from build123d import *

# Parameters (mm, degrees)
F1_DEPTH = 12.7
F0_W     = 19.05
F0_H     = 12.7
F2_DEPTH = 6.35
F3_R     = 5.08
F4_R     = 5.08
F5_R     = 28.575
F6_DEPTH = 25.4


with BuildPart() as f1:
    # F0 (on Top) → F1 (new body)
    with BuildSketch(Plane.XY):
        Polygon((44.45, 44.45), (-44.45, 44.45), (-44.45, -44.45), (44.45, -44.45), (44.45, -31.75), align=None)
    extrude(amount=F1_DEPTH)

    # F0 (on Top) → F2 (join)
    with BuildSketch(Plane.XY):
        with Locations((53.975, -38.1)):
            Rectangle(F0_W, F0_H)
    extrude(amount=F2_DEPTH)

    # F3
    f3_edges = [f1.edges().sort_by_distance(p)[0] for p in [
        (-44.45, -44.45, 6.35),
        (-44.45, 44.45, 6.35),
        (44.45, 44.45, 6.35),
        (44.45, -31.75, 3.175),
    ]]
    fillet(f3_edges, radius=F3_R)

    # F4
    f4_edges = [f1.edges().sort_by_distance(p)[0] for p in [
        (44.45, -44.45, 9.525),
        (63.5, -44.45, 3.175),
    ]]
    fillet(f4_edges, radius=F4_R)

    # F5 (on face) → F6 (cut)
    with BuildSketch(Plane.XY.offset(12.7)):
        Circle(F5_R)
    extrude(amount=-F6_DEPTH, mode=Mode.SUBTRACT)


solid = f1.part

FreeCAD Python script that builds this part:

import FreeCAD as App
import Part
import Sketcher

V = App.Vector
Q = App.Units.Quantity


def edges_at(feature, points):
    """Names of the edges that pass closest to the given points."""
    edges = feature.Shape.Edges
    near = lambda p: min(range(len(edges)), key=lambda i: edges[i].distToShape(Part.Vertex(*p))[0])
    return sorted({f"Edge{near(p) + 1}" for p in points})

doc = App.newDocument("Part")
body = doc.addObject("PartDesign::Body", "Body")

# Sketch on XY plane
sketch1 = body.newObject("Sketcher::SketchObject", "Sketch")
sketch1.AttachmentSupport = (doc.getObject("XY_Plane"), [""])
sketch1.MapMode = "FlatFace"
sketch1.addGeometry(Part.LineSegment(V(44, 44, 0), V(-44, 44, 0)), False)
sketch1.addGeometry(Part.LineSegment(V(-44, 44, 0), V(-44, -44, 0)), False)
sketch1.addGeometry(Part.LineSegment(V(-44, -44, 0), V(44, -44, 0)), False)
sketch1.addGeometry(Part.LineSegment(V(44, -44, 0), V(44, 44, 0)), False)
sketch1.addConstraint(Sketcher.Constraint("Coincident", 0, 2, 1, 1))
sketch1.addConstraint(Sketcher.Constraint("Coincident", 1, 2, 2, 1))
sketch1.addConstraint(Sketcher.Constraint("Coincident", 2, 2, 3, 1))
sketch1.addConstraint(Sketcher.Constraint("Coincident", 3, 2, 0, 1))
sketch1.addConstraint(Sketcher.Constraint("Horizontal", 0))
sketch1.addConstraint(Sketcher.Constraint("Vertical", 1))
sketch1.addConstraint(Sketcher.Constraint("Horizontal", 2))
sketch1.addConstraint(Sketcher.Constraint("Vertical", 3))
sketch1.addConstraint(Sketcher.Constraint("Symmetric", 0, 2, 2, 2, -1, 1))
sketch1.addConstraint(Sketcher.Constraint("Equal", 2, 1))
sketch1.addConstraint(Sketcher.Constraint("DistanceX", 0, 2, 0, 1, Q("3.5 in")))
pad1 = body.newObject("PartDesign::Pad", "Pad")
pad1.Profile = sketch1
pad1.Length = Q("0.5 in")

# Sketch on XY plane
sketch2 = body.newObject("Sketcher::SketchObject", "Sketch001")
sketch2.AttachmentSupport = (doc.getObject("XY_Plane"), [""])
sketch2.MapMode = "FlatFace"
sketch2.addGeometry(Part.LineSegment(V(44, -32, 0), V(44, -44, 0)), False)
sketch2.addGeometry(Part.LineSegment(V(44, -44, 0), V(64, -44, 0)), False)
sketch2.addGeometry(Part.LineSegment(V(64, -44, 0), V(64, -32, 0)), False)
sketch2.addGeometry(Part.LineSegment(V(64, -32, 0), V(44, -32, 0)), False)
sketch2.addConstraint(Sketcher.Constraint("Coincident", 0, 2, 1, 1))
sketch2.addConstraint(Sketcher.Constraint("Coincident", 1, 2, 2, 1))
sketch2.addConstraint(Sketcher.Constraint("Coincident", 2, 2, 3, 1))
sketch2.addConstraint(Sketcher.Constraint("Coincident", 3, 2, 0, 1))
sketch2.addConstraint(Sketcher.Constraint("Vertical", 0))
sketch2.addConstraint(Sketcher.Constraint("Horizontal", 1))
sketch2.addConstraint(Sketcher.Constraint("Vertical", 2))
sketch2.addConstraint(Sketcher.Constraint("Horizontal", 3))
sketch2.addConstraint(Sketcher.Constraint("DistanceY", 0, 2, 0, 1, Q("0.5 in")))
sketch2.addConstraint(Sketcher.Constraint("DistanceX", 1, 1, 1, 2, Q("0.75 in")))
sketch2.addConstraint(Sketcher.Constraint("DistanceX", -1, 1, 1, 2, Q("2.5 in")))
sketch2.addConstraint(Sketcher.Constraint("DistanceY", 0, 2, -1, 1, Q("1.75 in")))
pad2 = body.newObject("PartDesign::Pad", "Pad001")
pad2.Profile = sketch2
pad2.Length = Q("0.25 in")
doc.recompute()

fillet = body.newObject("PartDesign::Fillet", "Fillet")
fillet.Base = (pad2, edges_at(pad2, [
    (-44.45, -44.45, 6.35),
    (-44.45, 44.45, 6.35),
    (44.45, 44.45, 6.35),
    (44.45, -31.75, 3.175),
]))
fillet.Radius = Q("0.2 in")
doc.recompute()

fillet2 = body.newObject("PartDesign::Fillet", "Fillet001")
fillet2.Base = (fillet, edges_at(fillet, [(44.45, -44.45, 9.525), (63.5, -44.45, 3.175)]))
fillet2.Radius = Q("0.2 in")

# Sketch on XY plane
sketch3 = body.newObject("Sketcher::SketchObject", "Sketch002")
sketch3.AttachmentSupport = (doc.getObject("XY_Plane"), [""])
sketch3.MapMode = "FlatFace"
sketch3.AttachmentOffset = App.Placement(V(0, 0, 0.5 * 25.4), App.Rotation())
sketch3.addGeometry(Part.Circle(V(0, 0, 0), V(0, 0, 1), 29), False)
sketch3.addConstraint(Sketcher.Constraint("Coincident", 0, 3, -1, 1))
sketch3.addConstraint(Sketcher.Constraint("Diameter", 0, Q("2.25 in")))
pocket1 = body.newObject("PartDesign::Pocket", "Pocket")
pocket1.Profile = sketch3
pocket1.Length = Q("1 in")

doc.recompute()
